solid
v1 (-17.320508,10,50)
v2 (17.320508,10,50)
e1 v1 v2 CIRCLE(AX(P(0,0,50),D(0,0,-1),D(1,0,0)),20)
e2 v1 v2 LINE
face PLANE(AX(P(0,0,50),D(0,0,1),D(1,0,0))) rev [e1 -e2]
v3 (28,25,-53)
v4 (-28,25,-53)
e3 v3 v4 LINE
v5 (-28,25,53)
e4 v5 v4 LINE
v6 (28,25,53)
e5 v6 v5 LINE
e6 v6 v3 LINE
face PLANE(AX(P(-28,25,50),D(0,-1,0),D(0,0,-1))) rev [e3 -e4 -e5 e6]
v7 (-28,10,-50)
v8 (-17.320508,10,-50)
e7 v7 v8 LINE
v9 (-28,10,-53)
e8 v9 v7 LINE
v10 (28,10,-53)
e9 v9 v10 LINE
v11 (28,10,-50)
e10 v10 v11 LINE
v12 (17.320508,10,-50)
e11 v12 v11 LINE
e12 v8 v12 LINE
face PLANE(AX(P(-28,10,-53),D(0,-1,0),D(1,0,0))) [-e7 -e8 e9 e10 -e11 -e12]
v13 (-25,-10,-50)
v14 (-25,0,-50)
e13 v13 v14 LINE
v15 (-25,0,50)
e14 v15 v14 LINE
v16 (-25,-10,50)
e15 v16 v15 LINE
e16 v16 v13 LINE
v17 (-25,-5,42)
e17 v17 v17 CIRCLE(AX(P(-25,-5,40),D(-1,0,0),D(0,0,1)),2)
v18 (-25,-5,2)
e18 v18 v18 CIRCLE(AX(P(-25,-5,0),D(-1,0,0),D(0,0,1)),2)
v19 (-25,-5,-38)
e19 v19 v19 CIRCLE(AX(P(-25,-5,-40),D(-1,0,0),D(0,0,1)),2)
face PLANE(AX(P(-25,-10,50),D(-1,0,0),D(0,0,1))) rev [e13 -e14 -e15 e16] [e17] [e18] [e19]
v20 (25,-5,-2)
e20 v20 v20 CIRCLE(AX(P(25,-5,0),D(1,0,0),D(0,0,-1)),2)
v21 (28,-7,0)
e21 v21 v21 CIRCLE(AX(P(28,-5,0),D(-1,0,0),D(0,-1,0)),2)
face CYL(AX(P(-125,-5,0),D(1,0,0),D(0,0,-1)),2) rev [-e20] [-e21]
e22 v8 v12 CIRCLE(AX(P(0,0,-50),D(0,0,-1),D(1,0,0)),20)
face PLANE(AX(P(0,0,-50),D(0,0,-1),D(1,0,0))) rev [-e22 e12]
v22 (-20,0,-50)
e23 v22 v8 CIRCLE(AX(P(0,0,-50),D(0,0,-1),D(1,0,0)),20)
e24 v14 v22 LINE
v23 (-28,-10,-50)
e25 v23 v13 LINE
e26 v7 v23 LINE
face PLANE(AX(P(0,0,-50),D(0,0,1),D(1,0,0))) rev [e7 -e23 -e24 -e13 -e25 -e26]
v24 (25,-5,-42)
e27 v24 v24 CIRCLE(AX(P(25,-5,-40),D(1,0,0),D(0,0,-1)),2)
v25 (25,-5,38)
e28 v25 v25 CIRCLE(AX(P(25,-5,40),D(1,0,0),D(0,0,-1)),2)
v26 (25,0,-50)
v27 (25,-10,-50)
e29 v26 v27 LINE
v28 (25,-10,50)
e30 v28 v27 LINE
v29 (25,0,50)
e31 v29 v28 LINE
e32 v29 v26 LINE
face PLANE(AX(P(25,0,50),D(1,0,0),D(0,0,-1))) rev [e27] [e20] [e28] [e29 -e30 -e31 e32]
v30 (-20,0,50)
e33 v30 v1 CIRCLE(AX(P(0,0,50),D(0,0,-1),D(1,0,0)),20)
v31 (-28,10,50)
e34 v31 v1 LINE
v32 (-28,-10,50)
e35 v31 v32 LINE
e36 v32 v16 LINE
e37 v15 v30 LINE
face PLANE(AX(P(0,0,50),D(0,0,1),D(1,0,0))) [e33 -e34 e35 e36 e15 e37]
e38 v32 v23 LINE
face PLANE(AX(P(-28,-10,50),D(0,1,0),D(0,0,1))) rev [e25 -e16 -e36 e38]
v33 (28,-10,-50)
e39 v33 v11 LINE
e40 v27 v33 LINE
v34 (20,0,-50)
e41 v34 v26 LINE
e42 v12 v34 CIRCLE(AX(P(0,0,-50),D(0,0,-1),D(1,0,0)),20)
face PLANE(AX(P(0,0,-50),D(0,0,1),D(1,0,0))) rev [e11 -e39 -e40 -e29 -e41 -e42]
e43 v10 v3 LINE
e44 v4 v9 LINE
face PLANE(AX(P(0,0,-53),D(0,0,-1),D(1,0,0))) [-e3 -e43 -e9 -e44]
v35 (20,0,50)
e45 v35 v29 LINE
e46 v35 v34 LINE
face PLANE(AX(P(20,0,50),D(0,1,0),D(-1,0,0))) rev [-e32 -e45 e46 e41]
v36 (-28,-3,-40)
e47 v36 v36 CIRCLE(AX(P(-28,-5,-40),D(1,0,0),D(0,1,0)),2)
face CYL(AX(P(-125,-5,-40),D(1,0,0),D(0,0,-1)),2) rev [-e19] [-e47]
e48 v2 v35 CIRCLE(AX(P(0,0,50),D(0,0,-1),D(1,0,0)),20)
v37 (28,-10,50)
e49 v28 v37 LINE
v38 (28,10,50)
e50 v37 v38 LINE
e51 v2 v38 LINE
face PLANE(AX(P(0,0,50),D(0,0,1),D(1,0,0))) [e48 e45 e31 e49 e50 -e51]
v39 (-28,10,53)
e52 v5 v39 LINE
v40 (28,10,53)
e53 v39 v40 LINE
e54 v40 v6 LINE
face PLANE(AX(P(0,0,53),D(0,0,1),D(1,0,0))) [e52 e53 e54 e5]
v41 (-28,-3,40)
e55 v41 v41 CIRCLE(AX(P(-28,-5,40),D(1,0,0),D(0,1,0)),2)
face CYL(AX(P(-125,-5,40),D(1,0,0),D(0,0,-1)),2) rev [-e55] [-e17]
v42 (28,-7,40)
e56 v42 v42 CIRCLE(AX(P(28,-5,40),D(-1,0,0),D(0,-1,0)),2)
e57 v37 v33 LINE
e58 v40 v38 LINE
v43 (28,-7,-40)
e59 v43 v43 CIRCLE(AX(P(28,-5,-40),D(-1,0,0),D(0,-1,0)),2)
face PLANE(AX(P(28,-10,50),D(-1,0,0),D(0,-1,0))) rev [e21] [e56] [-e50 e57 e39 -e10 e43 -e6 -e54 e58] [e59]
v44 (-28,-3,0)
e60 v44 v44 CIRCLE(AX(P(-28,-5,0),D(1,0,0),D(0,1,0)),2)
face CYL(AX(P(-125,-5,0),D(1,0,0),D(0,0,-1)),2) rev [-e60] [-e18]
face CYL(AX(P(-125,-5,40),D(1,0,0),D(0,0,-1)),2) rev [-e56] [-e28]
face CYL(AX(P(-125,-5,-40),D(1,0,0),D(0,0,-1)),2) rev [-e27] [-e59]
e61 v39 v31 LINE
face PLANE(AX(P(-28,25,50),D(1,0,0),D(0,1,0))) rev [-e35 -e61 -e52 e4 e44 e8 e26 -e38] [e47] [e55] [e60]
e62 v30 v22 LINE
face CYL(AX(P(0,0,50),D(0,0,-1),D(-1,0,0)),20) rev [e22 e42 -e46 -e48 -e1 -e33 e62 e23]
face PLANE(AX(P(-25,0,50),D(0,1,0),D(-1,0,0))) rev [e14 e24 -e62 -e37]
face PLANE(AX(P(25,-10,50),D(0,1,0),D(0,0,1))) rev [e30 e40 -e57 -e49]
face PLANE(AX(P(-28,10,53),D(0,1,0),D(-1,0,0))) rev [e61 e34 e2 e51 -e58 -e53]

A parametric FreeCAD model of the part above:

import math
import FreeCAD as App
import Part
import Sketcher

V = App.Vector
Q = App.Units.Quantity

doc = App.newDocument("Part")
body = doc.addObject("PartDesign::Body", "Body")

sketch1 = body.newObject("Sketcher::SketchObject", "Sketch")
sketch1.AttachmentSupport = (doc.getObject("XY_Plane"), [""])
sketch1.MapMode = "FlatFace"
sketch1.addGeometry(Part.LineSegment(V(-28, 25, 0), V(-28, -10, 0)), False)
sketch1.addGeometry(Part.LineSegment(V(-28, -10, 0), V(-25, -10, 0)), False)
sketch1.addGeometry(Part.LineSegment(V(-25, -10, 0), V(-25, 0, 0)), False)
sketch1.addGeometry(Part.LineSegment(V(-25, 0, 0), V(-20, 0, 0)), False)
sketch1.addGeometry(Part.ArcOfCircle(Part.Circle(V(0, 0, 0), V(0, 0, 1), 20), math.radians(0), math.radians(180)), False)
sketch1.addGeometry(Part.LineSegment(V(20, 0, 0), V(25, 0, 0)), False)
sketch1.addGeometry(Part.LineSegment(V(25, 0, 0), V(25, -10, 0)), False)
sketch1.addGeometry(Part.LineSegment(V(25, -10, 0), V(28, -10, 0)), False)
sketch1.addGeometry(Part.LineSegment(V(28, -10, 0), V(28, 25, 0)), False)
sketch1.addGeometry(Part.LineSegment(V(28, 25, 0), V(-28, 25, 0)), False)
sketch1.addConstraint(Sketcher.Constraint("Coincident", 0, 2, 1, 1))
sketch1.addConstraint(Sketcher.Constraint("Coincident", 1, 2, 2, 1))
sketch1.addConstraint(Sketcher.Constraint("Coincident", 2, 2, 3, 1))
sketch1.addConstraint(Sketcher.Constraint("Coincident", 3, 2, 4, 2))
sketch1.addConstraint(Sketcher.Constraint("Coincident", 4, 1, 5, 1))
sketch1.addConstraint(Sketcher.Constraint("Coincident", 5, 2, 6, 1))
sketch1.addConstraint(Sketcher.Constraint("Coincident", 6, 2, 7, 1))
sketch1.addConstraint(Sketcher.Constraint("Coincident", 7, 2, 8, 1))
sketch1.addConstraint(Sketcher.Constraint("Coincident", 8, 2, 9, 1))
sketch1.addConstraint(Sketcher.Constraint("Coincident", 9, 2, 0, 1))
sketch1.addConstraint(Sketcher.Constraint("Vertical", 0))
sketch1.addConstraint(Sketcher.Constraint("Horizontal", 1))
sketch1.addConstraint(Sketcher.Constraint("Vertical", 2))
sketch1.addConstraint(Sketcher.Constraint("Horizontal", 3))
sketch1.addConstraint(Sketcher.Constraint("Horizontal", 5))
sketch1.addConstraint(Sketcher.Constraint("Vertical", 6))
sketch1.addConstraint(Sketcher.Constraint("Horizontal", 7))
sketch1.addConstraint(Sketcher.Constraint("Vertical", 8))
sketch1.addConstraint(Sketcher.Constraint("Horizontal", 9))
sketch1.addConstraint(Sketcher.Constraint("Coincident", 4, 3, -1, 1))
sketch1.addConstraint(Sketcher.Constraint("Symmetric", 2, 2, 5, 2, -1, 1))
sketch1.addConstraint(Sketcher.Constraint("Symmetric", 0, 2, 7, 2, -2))
sketch1.addConstraint(Sketcher.Constraint("PointOnObject", 2, 2, -1))
sketch1.addConstraint(Sketcher.Constraint("Radius", 4, Q("20 mm")))
sketch1.addConstraint(Sketcher.Constraint("DistanceX", 1, 1, 1, 2, Q("3 mm")))
sketch1.addConstraint(Sketcher.Constraint("DistanceX", 3, 1, 3, 2, Q("5 mm")))
sketch1.addConstraint(Sketcher.Constraint("DistanceY", 0, 2, 0, 1, Q("35 mm")))
sketch1.addConstraint(Sketcher.Constraint("DistanceY", 2, 1, 2, 2, Q("10 mm")))
pad1 = body.newObject("PartDesign::Pad", "Pad")
pad1.Profile = sketch1
pad1.Length = 100
pad1.Midplane = True

sketch2 = body.newObject("Sketcher::SketchObject", "Sketch001")
sketch2.AttachmentSupport = (doc.getObject("YZ_Plane"), [""])
sketch2.MapMode = "FlatFace"
sketch2.AttachmentOffset = App.Placement(V(0, 0, -25), App.Rotation())
sketch2.addGeometry(Part.Circle(V(-5, 40, 0), V(0, 0, 1), 2), False)
sketch2.addGeometry(Part.Circle(V(-5, 0, 0), V(0, 0, 1), 2), False)
sketch2.addGeometry(Part.Circle(V(-5, -40, 0), V(0, 0, 1), 2), False)
sketch2.addConstraint(Sketcher.Constraint("Equal", 0, 1))
sketch2.addConstraint(Sketcher.Constraint("Equal", 1, 2))
sketch2.addConstraint(Sketcher.Constraint("Symmetric", 0, 3, 2, 3, -1))
sketch2.addConstraint(Sketcher.Constraint("PointOnObject", 1, 3, -1))
sketch2.addConstraint(Sketcher.Constraint("Vertical", 0, 3, 1, 3))
sketch2.addConstraint(Sketcher.Constraint("Diameter", 0, Q("4 mm")))
sketch2.addConstraint(Sketcher.Constraint("DistanceX", 0, 3, -1, 1, Q("5 mm")))
sketch2.addConstraint(Sketcher.Constraint("DistanceY", -1, 1, 0, 3, Q("40 mm")))
pocket1 = body.newObject("PartDesign::Pocket", "Pocket")
pocket1.Profile = sketch2
pocket1.Type = "ThroughAll"
pocket1.Midplane = True

sketch3 = body.newObject("Sketcher::SketchObject", "Sketch002")
sketch3.AttachmentSupport = (doc.getObject("XY_Plane"), [""])
sketch3.MapMode = "FlatFace"
sketch3.AttachmentOffset = App.Placement(V(0, 0, 50), App.Rotation())
sketch3.addGeometry(Part.LineSegment(V(-28, 25, 0), V(-28, 10, 0)), False)
sketch3.addGeometry(Part.LineSegment(V(-28, 10, 0), V(28, 10, 0)), False)
sketch3.addGeometry(Part.LineSegment(V(28, 10, 0), V(28, 25, 0)), False)
sketch3.addGeometry(Part.LineSegment(V(28, 25, 0), V(-28, 25, 0)), False)
sketch3.addConstraint(Sketcher.Constraint("Coincident", 0, 2, 1, 1))
sketch3.addConstraint(Sketcher.Constraint("Coincident", 1, 2, 2, 1))
sketch3.addConstraint(Sketcher.Constraint("Coincident", 2, 2, 3, 1))
sketch3.addConstraint(Sketcher.Constraint("Coincident", 3, 2, 0, 1))
sketch3.addConstraint(Sketcher.Constraint("Vertical", 0))
sketch3.addConstraint(Sketcher.Constraint("Horizontal", 1))
sketch3.addConstraint(Sketcher.Constraint("Vertical", 2))
sketch3.addConstraint(Sketcher.Constraint("Horizontal", 3))
sketch3.addConstraint(Sketcher.Constraint("DistanceX", 1, 1, 1, 2, Q("56 mm")))
sketch3.addConstraint(Sketcher.Constraint("DistanceY", 0, 2, 0, 1, Q("15 mm")))
sketch3.addConstraint(Sketcher.Constraint("DistanceX", 0, 2, -1, 1, Q("28 mm")))
sketch3.addConstraint(Sketcher.Constraint("DistanceY", -1, 1, 0, 2, Q("10 mm")))
pad2 = body.newObject("PartDesign::Pad", "Pad001")
pad2.Profile = sketch3
pad2.Length = 3
doc.recompute()

mirrored = body.newObject("PartDesign::Mirrored", "Mirrored")
mirrored.Originals = [pad2]
mirrored.MirrorPlane = (doc.getObject("XY_Plane"), [""])
body.Tip = mirrored

doc.recompute()
